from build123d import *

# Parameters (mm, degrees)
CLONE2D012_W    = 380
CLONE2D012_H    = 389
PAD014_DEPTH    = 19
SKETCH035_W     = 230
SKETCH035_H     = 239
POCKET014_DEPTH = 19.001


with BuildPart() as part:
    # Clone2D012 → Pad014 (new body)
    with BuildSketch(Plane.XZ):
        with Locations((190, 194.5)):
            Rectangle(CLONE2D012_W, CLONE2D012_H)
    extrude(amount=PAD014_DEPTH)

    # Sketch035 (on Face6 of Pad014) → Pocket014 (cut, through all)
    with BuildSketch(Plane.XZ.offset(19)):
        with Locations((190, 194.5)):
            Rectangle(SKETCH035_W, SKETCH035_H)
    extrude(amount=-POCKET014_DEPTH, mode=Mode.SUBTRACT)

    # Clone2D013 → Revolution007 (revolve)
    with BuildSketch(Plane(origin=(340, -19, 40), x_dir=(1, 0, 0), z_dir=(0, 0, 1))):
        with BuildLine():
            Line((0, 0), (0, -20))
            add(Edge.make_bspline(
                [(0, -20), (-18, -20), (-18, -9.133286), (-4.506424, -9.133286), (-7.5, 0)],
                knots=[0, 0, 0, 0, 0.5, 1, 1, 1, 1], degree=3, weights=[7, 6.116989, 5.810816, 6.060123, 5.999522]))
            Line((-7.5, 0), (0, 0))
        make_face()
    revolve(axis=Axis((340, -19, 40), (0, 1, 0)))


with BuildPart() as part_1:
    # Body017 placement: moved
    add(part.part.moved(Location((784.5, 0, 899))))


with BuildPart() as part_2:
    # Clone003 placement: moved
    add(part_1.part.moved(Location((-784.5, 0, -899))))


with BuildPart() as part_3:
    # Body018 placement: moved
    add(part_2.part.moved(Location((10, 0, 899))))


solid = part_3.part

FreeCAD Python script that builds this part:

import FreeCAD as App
import Part
import Sketcher

doc = App.newDocument("Part")
params = doc.addObject("Spreadsheet::Sheet", "Params")
for row, (alias, value) in enumerate([
    ("sketch1_width", "380 mm"),
    ("sketch1_height", "389 mm"),
    ("pad1_length", "19 mm"),
    ("sketch2_width", "230 mm"),
    ("sketch2_height", "239 mm"),
    ("revolution_angle", "360 deg"),
], start=1):
    params.set(f"A{row}", alias)
    params.set(f"B{row}", "=" + value)
    params.setAlias(f"B{row}", alias)

body = doc.addObject("PartDesign::Body", "Body")

# Sketch on XZ plane
sketch1 = body.newObject("Sketcher::SketchObject", "Sketch")
sketch1.AttachmentSupport = (doc.getObject("XZ_Plane"), [""])
sketch1.MapMode = "FlatFace"
sketch1.addGeometry(Part.LineSegment(App.Vector(0, 389, 0), App.Vector(0, 0, 0)), False)
sketch1.addGeometry(Part.LineSegment(App.Vector(0, 0, 0), App.Vector(380, 0, 0)), False)
sketch1.addGeometry(Part.LineSegment(App.Vector(380, 0, 0), App.Vector(380, 389, 0)), False)
sketch1.addGeometry(Part.LineSegment(App.Vector(380, 389, 0), App.Vector(0, 389, 0)), False)
sketch1.addConstraint(Sketcher.Constraint("Coincident", 0, 2, 1, 1))
sketch1.addConstraint(Sketcher.Constraint("Coincident", 1, 2, 2, 1))
sketch1.addConstraint(Sketcher.Constraint("Coincident", 2, 2, 3, 1))
sketch1.addConstraint(Sketcher.Constraint("Coincident", 3, 2, 0, 1))
sketch1.addConstraint(Sketcher.Constraint("Vertical", 0))
sketch1.addConstraint(Sketcher.Constraint("Horizontal", 1))
sketch1.addConstraint(Sketcher.Constraint("Vertical", 2))
sketch1.addConstraint(Sketcher.Constraint("Horizontal", 3))
sketch1.addConstraint(Sketcher.Constraint("Coincident", 0, 2, -1, 1))
sketch1.addConstraint(Sketcher.Constraint("DistanceX", 1, 1, 1, 2, 380.0))
sketch1.addConstraint(Sketcher.Constraint("DistanceY", 0, 2, 0, 1, 389.0))
sketch1.setExpression("Constraints[9]", "Params.sketch1_width")
sketch1.setExpression("Constraints[10]", "Params.sketch1_height")
pad1 = body.newObject("PartDesign::Pad", "Pad")
pad1.Profile = sketch1
pad1.setExpression("Length", "Params.pad1_length")

# Sketch on XZ plane
sketch2 = body.newObject("Sketcher::SketchObject", "Sketch001")
sketch2.AttachmentSupport = (doc.getObject("XZ_Plane"), [""])
sketch2.MapMode = "FlatFace"
sketch2.AttachmentOffset = App.Placement(App.Vector(0, 0, 19), App.Rotation())
sketch2.addGeometry(Part.LineSegment(App.Vector(75, 314, 0), App.Vector(75, 75, 0)), False)
sketch2.addGeometry(Part.LineSegment(App.Vector(75, 75, 0), App.Vector(305, 75, 0)), False)
sketch2.addGeometry(Part.LineSegment(App.Vector(305, 75, 0), App.Vector(305, 314, 0)), False)
sketch2.addGeometry(Part.LineSegment(App.Vector(305, 314, 0), App.Vector(75, 314, 0)), False)
sketch2.addConstraint(Sketcher.Constraint("Coincident", 0, 2, 1, 1))
sketch2.addConstraint(Sketcher.Constraint("Coincident", 1, 2, 2, 1))
sketch2.addConstraint(Sketcher.Constraint("Coincident", 2, 2, 3, 1))
sketch2.addConstraint(Sketcher.Constraint("Coincident", 3, 2, 0, 1))
sketch2.addConstraint(Sketcher.Constraint("Vertical", 0))
sketch2.addConstraint(Sketcher.Constraint("Horizontal", 1))
sketch2.addConstraint(Sketcher.Constraint("Vertical", 2))
sketch2.addConstraint(Sketcher.Constraint("Horizontal", 3))
sketch2.addConstraint(Sketcher.Constraint("DistanceX", 1, 1, 1, 2, 230.0))
sketch2.addConstraint(Sketcher.Constraint("DistanceY", 0, 2, 0, 1, 239.0))
sketch2.addConstraint(Sketcher.Constraint("DistanceX", -1, 1, 0, 2, 75.0))
sketch2.addConstraint(Sketcher.Constraint("DistanceY", -1, 1, 0, 2, 75.0))
sketch2.setExpression("Constraints[8]", "Params.sketch2_width")
sketch2.setExpression("Constraints[9]", "Params.sketch2_height")
pocket1 = body.newObject("PartDesign::Pocket", "Pocket")
pocket1.Profile = sketch2
pocket1.Type = "ThroughAll"

# Sketch on XY plane
sketch3 = body.newObject("Sketcher::SketchObject", "Sketch002")
sketch3.AttachmentSupport = (doc.getObject("XY_Plane"), [""])
sketch3.MapMode = "FlatFace"
sketch3.AttachmentOffset = App.Placement(App.Vector(0, 0, 40), App.Rotation())
sketch3.addGeometry(Part.LineSegment(App.Vector(340, -39, 0), App.Vector(340, -19, 0)), False)
sketch3.addGeometry(Part.LineSegment(App.Vector(340, -19, 0), App.Vector(332.5, -19, 0)), False)
sketch3.addGeometry(Part.BSplineCurve([App.Vector(340, -39, 0), App.Vector(322, -39, 0), App.Vector(322, -28.133286, 0), App.Vector(335.493576, -28.133286, 0), App.Vector(332.5, -19, 0)], [4, 1, 4], [0, 0.5, 1], False, 3, [7, 6.116989, 5.810816, 6.060123, 5.999522], False), False)
sketch3.addGeometry(Part.LineSegment(App.Vector(340, -39, 0), App.Vector(340, -19, 0)), True)  # axis
sketch3.addConstraint(Sketcher.Constraint("Block", 2))
sketch3.addConstraint(Sketcher.Constraint("Coincident", 0, 2, 1, 1))
sketch3.addConstraint(Sketcher.Constraint("Coincident", 1, 2, 2, 2))
sketch3.addConstraint(Sketcher.Constraint("Coincident", 2, 1, 0, 1))
sketch3.addConstraint(Sketcher.Constraint("Vertical", 0))
sketch3.addConstraint(Sketcher.Constraint("Horizontal", 1))
sketch3.addConstraint(Sketcher.Constraint("Vertical", 3))
sketch3.addConstraint(Sketcher.Constraint("Coincident", 3, 2, 0, 2))
sketch3.addConstraint(Sketcher.Constraint("Equal", 0, 3))
revolution = body.newObject("PartDesign::Revolution", "Revolution")
revolution.Profile = sketch3
revolution.ReferenceAxis = (sketch3, ["Axis0"])
revolution.setExpression("Angle", "Params.revolution_angle")
body2 = doc.addObject("PartDesign::Body", "Body001")
doc.recompute()

body.Placement = App.Placement(App.Vector(784.5, 0, 899), App.Rotation(App.Vector(0, 0, 1), 0))
boolean = body2.newObject("PartDesign::Boolean", "Boolean")
boolean.Type = "Fuse"
boolean.addObjects([body])
body3 = doc.addObject("PartDesign::Body", "Body002")
doc.recompute()

body2.Placement = App.Placement(App.Vector(-784.5, 0, -899), App.Rotation(App.Vector(0, 0, 1), 0))
boolean2 = body3.newObject("PartDesign::Boolean", "Boolean001")
boolean2.Type = "Fuse"
boolean2.addObjects([body2])
body4 = doc.addObject("PartDesign::Body", "Body003")
doc.recompute()

body3.Placement = App.Placement(App.Vector(10, 0, 899), App.Rotation(App.Vector(0, 0, 1), 0))
boolean3 = body4.newObject("PartDesign::Boolean", "Boolean002")
boolean3.Type = "Fuse"
boolean3.addObjects([body3])

doc.recompute()
